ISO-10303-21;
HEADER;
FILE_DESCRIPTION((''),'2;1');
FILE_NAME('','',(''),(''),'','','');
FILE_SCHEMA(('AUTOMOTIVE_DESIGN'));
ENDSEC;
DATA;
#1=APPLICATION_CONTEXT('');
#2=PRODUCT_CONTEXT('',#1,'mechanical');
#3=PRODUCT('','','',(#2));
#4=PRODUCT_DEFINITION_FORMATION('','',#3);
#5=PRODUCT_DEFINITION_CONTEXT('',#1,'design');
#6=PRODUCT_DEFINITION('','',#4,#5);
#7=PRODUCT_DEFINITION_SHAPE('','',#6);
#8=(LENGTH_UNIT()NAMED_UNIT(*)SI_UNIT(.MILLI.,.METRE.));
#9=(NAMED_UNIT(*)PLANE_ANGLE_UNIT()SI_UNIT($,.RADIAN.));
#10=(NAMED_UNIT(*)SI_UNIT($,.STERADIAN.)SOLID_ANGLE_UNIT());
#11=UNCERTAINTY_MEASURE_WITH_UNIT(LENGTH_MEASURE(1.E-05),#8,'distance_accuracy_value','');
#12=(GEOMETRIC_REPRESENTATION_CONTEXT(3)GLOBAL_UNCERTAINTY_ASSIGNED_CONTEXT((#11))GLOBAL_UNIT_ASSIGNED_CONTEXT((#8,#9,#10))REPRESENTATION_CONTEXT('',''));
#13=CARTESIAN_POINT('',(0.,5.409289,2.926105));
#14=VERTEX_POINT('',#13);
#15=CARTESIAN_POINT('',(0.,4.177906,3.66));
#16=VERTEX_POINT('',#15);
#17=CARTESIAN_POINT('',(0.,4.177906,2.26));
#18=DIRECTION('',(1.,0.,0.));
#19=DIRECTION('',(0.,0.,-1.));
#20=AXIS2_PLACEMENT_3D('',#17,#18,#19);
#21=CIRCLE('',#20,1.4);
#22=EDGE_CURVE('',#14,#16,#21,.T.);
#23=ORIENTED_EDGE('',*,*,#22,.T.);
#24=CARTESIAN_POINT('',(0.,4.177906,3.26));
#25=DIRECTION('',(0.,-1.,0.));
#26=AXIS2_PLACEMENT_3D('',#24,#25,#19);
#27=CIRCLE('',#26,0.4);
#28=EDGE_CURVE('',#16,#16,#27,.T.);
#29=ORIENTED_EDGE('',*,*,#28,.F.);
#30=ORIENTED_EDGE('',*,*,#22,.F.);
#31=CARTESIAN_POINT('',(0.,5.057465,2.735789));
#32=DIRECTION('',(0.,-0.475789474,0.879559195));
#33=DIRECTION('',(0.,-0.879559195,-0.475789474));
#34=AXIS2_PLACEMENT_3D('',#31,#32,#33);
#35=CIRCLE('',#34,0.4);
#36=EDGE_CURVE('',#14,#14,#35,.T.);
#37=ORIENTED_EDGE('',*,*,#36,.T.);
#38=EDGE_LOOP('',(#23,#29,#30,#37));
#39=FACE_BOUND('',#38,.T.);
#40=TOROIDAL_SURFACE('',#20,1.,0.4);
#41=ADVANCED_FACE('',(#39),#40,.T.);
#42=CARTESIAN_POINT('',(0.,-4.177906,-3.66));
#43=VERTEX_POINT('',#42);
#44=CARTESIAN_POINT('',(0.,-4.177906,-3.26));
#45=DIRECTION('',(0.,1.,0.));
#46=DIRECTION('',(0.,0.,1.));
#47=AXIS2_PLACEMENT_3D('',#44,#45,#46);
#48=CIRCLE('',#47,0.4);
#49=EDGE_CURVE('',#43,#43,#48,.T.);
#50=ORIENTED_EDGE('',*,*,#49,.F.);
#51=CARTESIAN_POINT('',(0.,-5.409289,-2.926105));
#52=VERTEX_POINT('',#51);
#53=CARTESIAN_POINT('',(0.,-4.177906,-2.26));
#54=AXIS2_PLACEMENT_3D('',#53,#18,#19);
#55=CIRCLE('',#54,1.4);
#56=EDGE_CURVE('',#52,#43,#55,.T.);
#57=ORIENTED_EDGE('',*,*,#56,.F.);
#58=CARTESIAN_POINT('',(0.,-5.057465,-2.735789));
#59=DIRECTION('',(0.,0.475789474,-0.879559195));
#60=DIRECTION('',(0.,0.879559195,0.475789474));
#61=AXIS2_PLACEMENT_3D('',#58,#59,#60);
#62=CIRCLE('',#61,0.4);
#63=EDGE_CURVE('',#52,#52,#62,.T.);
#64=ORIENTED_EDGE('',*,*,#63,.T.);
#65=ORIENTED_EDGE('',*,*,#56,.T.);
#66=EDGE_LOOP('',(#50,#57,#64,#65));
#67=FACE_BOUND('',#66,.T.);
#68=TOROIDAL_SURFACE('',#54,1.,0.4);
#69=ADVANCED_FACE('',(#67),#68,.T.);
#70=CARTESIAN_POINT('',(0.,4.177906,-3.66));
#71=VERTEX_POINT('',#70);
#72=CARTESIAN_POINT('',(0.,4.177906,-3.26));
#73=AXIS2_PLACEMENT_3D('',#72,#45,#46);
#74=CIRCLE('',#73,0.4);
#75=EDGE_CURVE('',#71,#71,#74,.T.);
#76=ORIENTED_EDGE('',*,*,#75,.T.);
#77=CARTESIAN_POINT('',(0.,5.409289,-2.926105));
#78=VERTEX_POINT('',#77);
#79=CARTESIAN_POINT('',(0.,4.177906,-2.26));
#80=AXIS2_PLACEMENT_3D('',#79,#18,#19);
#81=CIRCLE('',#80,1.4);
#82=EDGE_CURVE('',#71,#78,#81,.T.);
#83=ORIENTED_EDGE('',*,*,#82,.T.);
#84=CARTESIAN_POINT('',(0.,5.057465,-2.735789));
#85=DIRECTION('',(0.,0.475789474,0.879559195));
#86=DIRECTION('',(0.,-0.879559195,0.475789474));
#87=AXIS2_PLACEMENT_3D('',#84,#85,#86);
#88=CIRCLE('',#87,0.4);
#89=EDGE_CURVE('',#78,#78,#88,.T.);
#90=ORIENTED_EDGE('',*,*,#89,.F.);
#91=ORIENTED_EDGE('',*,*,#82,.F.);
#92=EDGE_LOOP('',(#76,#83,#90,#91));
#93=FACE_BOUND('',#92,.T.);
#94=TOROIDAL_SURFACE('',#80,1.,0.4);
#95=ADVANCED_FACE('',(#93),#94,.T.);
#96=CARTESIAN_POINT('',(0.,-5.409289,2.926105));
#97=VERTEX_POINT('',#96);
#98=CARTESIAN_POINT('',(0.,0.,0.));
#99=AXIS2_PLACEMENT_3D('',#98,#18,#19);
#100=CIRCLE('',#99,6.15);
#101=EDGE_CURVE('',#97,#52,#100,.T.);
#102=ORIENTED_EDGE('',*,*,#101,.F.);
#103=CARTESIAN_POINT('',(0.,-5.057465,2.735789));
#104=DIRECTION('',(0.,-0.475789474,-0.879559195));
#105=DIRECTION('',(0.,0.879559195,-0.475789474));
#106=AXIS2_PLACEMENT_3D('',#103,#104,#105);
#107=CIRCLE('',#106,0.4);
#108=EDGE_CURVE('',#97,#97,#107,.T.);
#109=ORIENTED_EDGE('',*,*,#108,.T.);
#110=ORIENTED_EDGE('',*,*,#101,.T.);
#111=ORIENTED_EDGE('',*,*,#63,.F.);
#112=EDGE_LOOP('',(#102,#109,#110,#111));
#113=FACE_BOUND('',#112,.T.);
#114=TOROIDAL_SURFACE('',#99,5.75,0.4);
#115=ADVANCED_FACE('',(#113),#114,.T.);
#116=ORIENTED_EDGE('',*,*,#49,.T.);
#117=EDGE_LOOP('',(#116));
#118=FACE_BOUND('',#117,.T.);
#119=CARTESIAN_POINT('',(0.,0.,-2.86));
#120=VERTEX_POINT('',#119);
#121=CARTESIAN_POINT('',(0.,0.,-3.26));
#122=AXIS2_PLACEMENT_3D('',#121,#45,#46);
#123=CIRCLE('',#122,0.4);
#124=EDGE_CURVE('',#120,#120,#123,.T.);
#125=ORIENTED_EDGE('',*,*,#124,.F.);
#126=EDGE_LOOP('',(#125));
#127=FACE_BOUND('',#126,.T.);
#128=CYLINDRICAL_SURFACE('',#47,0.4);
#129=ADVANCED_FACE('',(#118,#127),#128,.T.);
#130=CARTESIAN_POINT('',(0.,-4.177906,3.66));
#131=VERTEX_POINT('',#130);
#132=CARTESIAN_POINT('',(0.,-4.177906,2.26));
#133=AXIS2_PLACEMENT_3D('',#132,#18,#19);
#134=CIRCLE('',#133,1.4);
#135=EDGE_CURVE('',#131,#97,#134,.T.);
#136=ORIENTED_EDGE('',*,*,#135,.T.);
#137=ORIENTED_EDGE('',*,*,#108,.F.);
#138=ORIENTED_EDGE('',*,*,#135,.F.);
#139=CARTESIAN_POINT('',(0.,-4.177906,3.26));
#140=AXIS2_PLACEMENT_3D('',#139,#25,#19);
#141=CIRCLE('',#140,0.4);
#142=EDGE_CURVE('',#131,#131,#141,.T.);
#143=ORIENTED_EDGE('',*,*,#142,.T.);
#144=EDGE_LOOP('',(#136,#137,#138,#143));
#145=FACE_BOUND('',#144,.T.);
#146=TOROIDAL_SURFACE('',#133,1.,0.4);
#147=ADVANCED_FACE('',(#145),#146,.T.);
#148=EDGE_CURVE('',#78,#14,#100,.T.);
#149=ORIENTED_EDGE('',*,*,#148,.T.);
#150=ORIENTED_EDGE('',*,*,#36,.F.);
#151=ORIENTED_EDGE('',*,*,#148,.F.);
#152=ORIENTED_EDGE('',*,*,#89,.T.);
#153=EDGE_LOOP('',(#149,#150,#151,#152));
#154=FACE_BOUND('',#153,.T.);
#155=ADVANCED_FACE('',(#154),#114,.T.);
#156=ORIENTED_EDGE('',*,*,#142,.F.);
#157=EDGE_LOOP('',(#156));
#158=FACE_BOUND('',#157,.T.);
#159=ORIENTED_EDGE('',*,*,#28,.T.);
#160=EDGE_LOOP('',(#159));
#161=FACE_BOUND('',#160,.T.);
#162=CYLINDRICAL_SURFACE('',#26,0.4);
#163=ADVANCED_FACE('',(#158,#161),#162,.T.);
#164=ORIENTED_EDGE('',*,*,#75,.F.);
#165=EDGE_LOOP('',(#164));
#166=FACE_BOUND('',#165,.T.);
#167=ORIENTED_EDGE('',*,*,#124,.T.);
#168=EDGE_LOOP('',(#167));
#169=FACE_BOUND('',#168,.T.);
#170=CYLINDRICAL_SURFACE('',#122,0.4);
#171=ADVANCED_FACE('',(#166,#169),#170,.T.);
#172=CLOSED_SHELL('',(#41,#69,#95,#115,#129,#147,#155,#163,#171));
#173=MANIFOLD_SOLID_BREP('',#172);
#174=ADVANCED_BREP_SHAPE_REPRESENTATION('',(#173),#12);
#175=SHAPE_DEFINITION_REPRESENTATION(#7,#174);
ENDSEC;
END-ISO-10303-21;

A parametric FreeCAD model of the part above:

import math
import FreeCAD as App
import Part
import Sketcher
Q = App.Units.Quantity

doc = App.newDocument("Part")
body = doc.addObject("PartDesign::Body", "Body")

sketch1 = doc.addObject("Sketcher::SketchObject", "Sketch")
body.addObject(sketch1)
sketch1.AttachmentSupport = (doc.XZ_Plane, [""])
sketch1.MapMode = "FlatFace"
sketch1.addGeometry(Part.Circle(App.Vector(0, -3.26, 0), App.Vector(0, 0, 1), 0.4), False)
sketch1.addConstraint([
    Sketcher.Constraint("PointOnObject", 0, 3, -2),
    Sketcher.Constraint("Diameter", 0, Q("0.8 mm")),
    Sketcher.Constraint("DistanceY", 0, 3, -1, 1, Q("3.26 mm")),
])

sketch2 = doc.addObject("Sketcher::SketchObject", "Sketch001")
body.addObject(sketch2)
sketch2.AttachmentSupport = (doc.YZ_Plane, [""])
sketch2.MapMode = "FlatFace"
sketch2.addGeometry([
    Part.LineSegment(App.Vector(4.18, -2.76, 0), App.Vector(-4.18, -2.76, 0)),
    Part.ArcOfCircle(Part.Circle(App.Vector(-4.18, -2.26, 0), App.Vector(0, 0, 1), 0.5), math.radians(-152), math.radians(-90)),
    Part.ArcOfCircle(Part.Circle(App.Vector(0, 0, 0), App.Vector(0, 0, 1), 5.25), math.radians(152), math.radians(208)),
    Part.ArcOfCircle(Part.Circle(App.Vector(-4.18, 2.26, 0), App.Vector(0, 0, 1), 0.5), math.radians(90), math.radians(152)),
    Part.LineSegment(App.Vector(-4.18, 2.76, 0), App.Vector(4.18, 2.76, 0)),
    Part.ArcOfCircle(Part.Circle(App.Vector(4.18, 2.26, 0), App.Vector(0, 0, 1), 0.5), math.radians(28), math.radians(90)),
    Part.ArcOfCircle(Part.Circle(App.Vector(0, 0, 0), App.Vector(0, 0, 1), 5.25), math.radians(-28), math.radians(28)),
    Part.ArcOfCircle(Part.Circle(App.Vector(4.18, -2.26, 0), App.Vector(0, 0, 1), 0.5), math.radians(-90), math.radians(-28)),
], False)
sketch2.addConstraint([
    Sketcher.Constraint("Tangent", 0, 2, 1, 2),
    Sketcher.Constraint("Tangent", 1, 1, 2, 2),
    Sketcher.Constraint("Tangent", 2, 1, 3, 2),
    Sketcher.Constraint("Tangent", 3, 1, 4, 1),
    Sketcher.Constraint("Tangent", 4, 2, 5, 2),
    Sketcher.Constraint("Tangent", 5, 1, 6, 2),
    Sketcher.Constraint("Tangent", 6, 1, 7, 2),
    Sketcher.Constraint("Tangent", 7, 1, 0, 1),
    Sketcher.Constraint("Horizontal", 0),
    Sketcher.Constraint("Horizontal", 4),
    Sketcher.Constraint("Coincident", 2, 3, -1, 1),
    Sketcher.Constraint("Coincident", 6, 3, -1, 1),
    Sketcher.Constraint("Equal", 1, 3),
    Sketcher.Constraint("Equal", 3, 5),
    Sketcher.Constraint("Equal", 2, 6),
    Sketcher.Constraint("Equal", 5, 7),
    Sketcher.Constraint("Vertical", 1, 3, 3, 3),
    Sketcher.Constraint("Radius", 1, Q("0.5 mm")),
    Sketcher.Constraint("Radius", 2, Q("5.25 mm")),
    Sketcher.Constraint("DistanceY", 1, 3, -1, 1, Q("2.26 mm")),
])
doc.recompute()

additivepipe = doc.addObject("PartDesign::AdditivePipe", "AdditivePipe")
body.addObject(additivepipe)
additivepipe.Profile = sketch1
additivepipe.Spine = (sketch2, ["Edge1", "Edge2", "Edge3", "Edge4", "Edge5", "Edge6", "Edge7", "Edge8"])

doc.recompute()
